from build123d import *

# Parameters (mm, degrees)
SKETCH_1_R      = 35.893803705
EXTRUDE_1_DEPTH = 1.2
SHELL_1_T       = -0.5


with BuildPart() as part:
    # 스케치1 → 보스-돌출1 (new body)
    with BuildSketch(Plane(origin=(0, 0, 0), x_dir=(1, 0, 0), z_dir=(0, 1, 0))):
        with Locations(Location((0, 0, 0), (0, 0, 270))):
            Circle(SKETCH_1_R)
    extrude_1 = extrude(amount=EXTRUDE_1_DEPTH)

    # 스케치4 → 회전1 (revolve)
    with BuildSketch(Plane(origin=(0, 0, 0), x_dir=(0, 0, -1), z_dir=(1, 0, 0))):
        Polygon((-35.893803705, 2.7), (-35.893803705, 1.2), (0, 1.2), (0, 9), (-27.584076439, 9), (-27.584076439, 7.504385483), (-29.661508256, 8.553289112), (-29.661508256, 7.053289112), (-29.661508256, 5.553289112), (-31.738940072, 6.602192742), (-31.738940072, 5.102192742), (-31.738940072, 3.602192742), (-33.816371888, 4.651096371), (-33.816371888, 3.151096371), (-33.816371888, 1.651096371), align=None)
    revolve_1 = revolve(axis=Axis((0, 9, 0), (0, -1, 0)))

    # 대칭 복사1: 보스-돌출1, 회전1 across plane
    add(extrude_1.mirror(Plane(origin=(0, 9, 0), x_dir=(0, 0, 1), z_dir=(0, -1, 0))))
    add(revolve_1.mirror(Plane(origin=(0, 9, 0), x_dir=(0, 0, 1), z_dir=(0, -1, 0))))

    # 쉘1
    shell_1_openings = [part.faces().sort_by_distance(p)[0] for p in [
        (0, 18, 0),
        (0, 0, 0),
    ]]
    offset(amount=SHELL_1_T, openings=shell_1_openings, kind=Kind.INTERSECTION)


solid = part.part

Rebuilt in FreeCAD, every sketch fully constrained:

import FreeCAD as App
import Part
import Sketcher
from FreeCAD import Vector
Q = App.Units.Quantity


def faces_at(feature, points):
    """Names of the faces that lie closest to the given points."""
    faces = feature.Shape.Faces
    near = lambda p: min(range(len(faces)), key=lambda i: faces[i].distToShape(Part.Vertex(*p))[0])
    return sorted({f"Face{near(p) + 1}" for p in points})


def add_polygon(sketch, points):
    """Adds a closed chain of lines whose ends are joined by coincident constraints."""
    first, n = sketch.GeometryCount, len(points)
    for a, b in zip(points, points[1:] + points[:1]):
        sketch.addGeometry(Part.LineSegment(App.Vector(*a, 0), App.Vector(*b, 0)), False)
    for i in range(n):
        sketch.addConstraint(Sketcher.Constraint("Coincident", first + i, 2, first + (i + 1) % n, 1))

doc = App.newDocument("Part")
params = doc.addObject("Spreadsheet::Sheet", "Params")
for row, (alias, value) in enumerate([
    ("pad1_length", "1.2 mm"),
    ("sketch2_width", "3 mm"),
    ("sketch2_width2", "1.5 mm"),
    ("sketch2_width3", "7.8 mm"),
    ("revolution_angle", "360 deg"),
    ("thickness_wall", "0.5 mm"),
], start=1):
    params.set(f"A{row}", alias)
    params.set(f"B{row}", "=" + value)
    params.setAlias(f"B{row}", alias)

body = doc.addObject("PartDesign::Body", "Body")

sketch1 = body.newObject("Sketcher::SketchObject", "Sketch")
sketch1.AttachmentSupport = (doc.getObject("XZ_Plane"), [""])
sketch1.MapMode = "FlatFace"
sketch1.addGeometry(Part.Circle(Vector(0, 0, 0), Vector(0, 0, 1), 36), False)
sketch1.addConstraint(Sketcher.Constraint("Coincident", 0, 3, -1, 1))
sketch1.addConstraint(Sketcher.Constraint("Diameter", 0, Q("71.787607 mm")))
pad1 = body.newObject("PartDesign::Pad", "Pad")
pad1.Profile = sketch1
pad1.setExpression("Length", "Params.pad1_length")
pad1.Reversed = True

sketch2 = body.newObject("Sketcher::SketchObject", "Sketch001")
sketch2.AttachmentSupport = (doc.getObject("YZ_Plane"), [""])
sketch2.MapMode = "FlatFace"
add_polygon(sketch2, [(2.7, 35.9), (1.2, 35.9), (1.2, 0), (9, 0), (9, 27.6), (7.5, 27.6), (8.6, 29.7), (5.6, 29.7), (6.6, 31.7), (3.6, 31.7), (4.7, 33.8), (1.7, 33.8)])
sketch2.addConstraint(Sketcher.Constraint("Horizontal", 0))
sketch2.addConstraint(Sketcher.Constraint("Vertical", 1))
sketch2.addConstraint(Sketcher.Constraint("Horizontal", 2))
sketch2.addConstraint(Sketcher.Constraint("Vertical", 3))
sketch2.addConstraint(Sketcher.Constraint("Horizontal", 4))
sketch2.addConstraint(Sketcher.Constraint("Horizontal", 6))
sketch2.addConstraint(Sketcher.Constraint("Horizontal", 8))
sketch2.addConstraint(Sketcher.Constraint("Horizontal", 10))
sketch2.addConstraint(Sketcher.Constraint("PointOnObject", 1, 2, -1))
sketch2.addConstraint(Sketcher.Constraint("Parallel", 5, 7))
sketch2.addConstraint(Sketcher.Constraint("Parallel", 7, 9))
sketch2.addConstraint(Sketcher.Constraint("Parallel", 9, 11))
sketch2.addConstraint(Sketcher.Constraint("Equal", 6, 8))
sketch2.addConstraint(Sketcher.Constraint("Equal", 8, 10))
sketch2.addConstraint(Sketcher.Constraint("Equal", 5, 7))
sketch2.addConstraint(Sketcher.Constraint("Equal", 7, 9))
sketch2.addConstraint(Sketcher.Constraint("Equal", 9, 11))
sketch2.addConstraint(Sketcher.Constraint("DistanceX", 6, 2, 6, 1, Q("3 mm")))
sketch2.addConstraint(Sketcher.Constraint("DistanceX", 0, 2, 0, 1, Q("1.5 mm")))
sketch2.addConstraint(Sketcher.Constraint("DistanceX", 2, 1, 2, 2, Q("7.8 mm")))
sketch2.addConstraint(Sketcher.Constraint("DistanceX", -1, 1, 2, 2, Q("9 mm")))
sketch2.addConstraint(Sketcher.Constraint("DistanceX", 4, 2, 4, 1, Q("1.495615 mm")))
sketch2.addConstraint(Sketcher.Constraint("DistanceY", 1, 2, 1, 1, Q("35.893804 mm")))
sketch2.addConstraint(Sketcher.Constraint("DistanceY", 3, 1, 3, 2, Q("27.584076 mm")))
sketch2.setExpression("Constraints[29]", "Params.sketch2_width")
sketch2.setExpression("Constraints[30]", "Params.sketch2_width2")
sketch2.setExpression("Constraints[31]", "Params.sketch2_width3")
revolution = body.newObject("PartDesign::Revolution", "Revolution")
revolution.Profile = sketch2
revolution.ReferenceAxis = (sketch2, ["H_Axis"])
revolution.setExpression("Angle", "Params.revolution_angle")
doc.recompute()

datumplane = body.newObject("PartDesign::Plane", "DatumPlane")
datumplane.AttachmentSupport = (doc.getObject("XZ_Plane"), [""])
datumplane.MapMode = "FlatFace"
datumplane.AttachmentOffset = App.Placement(Vector(0, 0, -9), App.Rotation())
mirrored = body.newObject("PartDesign::Mirrored", "Mirrored")
mirrored.Originals = [pad1, revolution]
mirrored.MirrorPlane = (datumplane, [""])
body.Tip = mirrored
doc.recompute()

thickness = body.newObject("PartDesign::Thickness", "Thickness")
thickness.Base = (mirrored, faces_at(mirrored, [(0, 18, 0), (0, 0, 0)]))
thickness.setExpression("Value", "Params.thickness_wall")
thickness.Reversed = True
thickness.Join = "Intersection"

doc.recompute()
